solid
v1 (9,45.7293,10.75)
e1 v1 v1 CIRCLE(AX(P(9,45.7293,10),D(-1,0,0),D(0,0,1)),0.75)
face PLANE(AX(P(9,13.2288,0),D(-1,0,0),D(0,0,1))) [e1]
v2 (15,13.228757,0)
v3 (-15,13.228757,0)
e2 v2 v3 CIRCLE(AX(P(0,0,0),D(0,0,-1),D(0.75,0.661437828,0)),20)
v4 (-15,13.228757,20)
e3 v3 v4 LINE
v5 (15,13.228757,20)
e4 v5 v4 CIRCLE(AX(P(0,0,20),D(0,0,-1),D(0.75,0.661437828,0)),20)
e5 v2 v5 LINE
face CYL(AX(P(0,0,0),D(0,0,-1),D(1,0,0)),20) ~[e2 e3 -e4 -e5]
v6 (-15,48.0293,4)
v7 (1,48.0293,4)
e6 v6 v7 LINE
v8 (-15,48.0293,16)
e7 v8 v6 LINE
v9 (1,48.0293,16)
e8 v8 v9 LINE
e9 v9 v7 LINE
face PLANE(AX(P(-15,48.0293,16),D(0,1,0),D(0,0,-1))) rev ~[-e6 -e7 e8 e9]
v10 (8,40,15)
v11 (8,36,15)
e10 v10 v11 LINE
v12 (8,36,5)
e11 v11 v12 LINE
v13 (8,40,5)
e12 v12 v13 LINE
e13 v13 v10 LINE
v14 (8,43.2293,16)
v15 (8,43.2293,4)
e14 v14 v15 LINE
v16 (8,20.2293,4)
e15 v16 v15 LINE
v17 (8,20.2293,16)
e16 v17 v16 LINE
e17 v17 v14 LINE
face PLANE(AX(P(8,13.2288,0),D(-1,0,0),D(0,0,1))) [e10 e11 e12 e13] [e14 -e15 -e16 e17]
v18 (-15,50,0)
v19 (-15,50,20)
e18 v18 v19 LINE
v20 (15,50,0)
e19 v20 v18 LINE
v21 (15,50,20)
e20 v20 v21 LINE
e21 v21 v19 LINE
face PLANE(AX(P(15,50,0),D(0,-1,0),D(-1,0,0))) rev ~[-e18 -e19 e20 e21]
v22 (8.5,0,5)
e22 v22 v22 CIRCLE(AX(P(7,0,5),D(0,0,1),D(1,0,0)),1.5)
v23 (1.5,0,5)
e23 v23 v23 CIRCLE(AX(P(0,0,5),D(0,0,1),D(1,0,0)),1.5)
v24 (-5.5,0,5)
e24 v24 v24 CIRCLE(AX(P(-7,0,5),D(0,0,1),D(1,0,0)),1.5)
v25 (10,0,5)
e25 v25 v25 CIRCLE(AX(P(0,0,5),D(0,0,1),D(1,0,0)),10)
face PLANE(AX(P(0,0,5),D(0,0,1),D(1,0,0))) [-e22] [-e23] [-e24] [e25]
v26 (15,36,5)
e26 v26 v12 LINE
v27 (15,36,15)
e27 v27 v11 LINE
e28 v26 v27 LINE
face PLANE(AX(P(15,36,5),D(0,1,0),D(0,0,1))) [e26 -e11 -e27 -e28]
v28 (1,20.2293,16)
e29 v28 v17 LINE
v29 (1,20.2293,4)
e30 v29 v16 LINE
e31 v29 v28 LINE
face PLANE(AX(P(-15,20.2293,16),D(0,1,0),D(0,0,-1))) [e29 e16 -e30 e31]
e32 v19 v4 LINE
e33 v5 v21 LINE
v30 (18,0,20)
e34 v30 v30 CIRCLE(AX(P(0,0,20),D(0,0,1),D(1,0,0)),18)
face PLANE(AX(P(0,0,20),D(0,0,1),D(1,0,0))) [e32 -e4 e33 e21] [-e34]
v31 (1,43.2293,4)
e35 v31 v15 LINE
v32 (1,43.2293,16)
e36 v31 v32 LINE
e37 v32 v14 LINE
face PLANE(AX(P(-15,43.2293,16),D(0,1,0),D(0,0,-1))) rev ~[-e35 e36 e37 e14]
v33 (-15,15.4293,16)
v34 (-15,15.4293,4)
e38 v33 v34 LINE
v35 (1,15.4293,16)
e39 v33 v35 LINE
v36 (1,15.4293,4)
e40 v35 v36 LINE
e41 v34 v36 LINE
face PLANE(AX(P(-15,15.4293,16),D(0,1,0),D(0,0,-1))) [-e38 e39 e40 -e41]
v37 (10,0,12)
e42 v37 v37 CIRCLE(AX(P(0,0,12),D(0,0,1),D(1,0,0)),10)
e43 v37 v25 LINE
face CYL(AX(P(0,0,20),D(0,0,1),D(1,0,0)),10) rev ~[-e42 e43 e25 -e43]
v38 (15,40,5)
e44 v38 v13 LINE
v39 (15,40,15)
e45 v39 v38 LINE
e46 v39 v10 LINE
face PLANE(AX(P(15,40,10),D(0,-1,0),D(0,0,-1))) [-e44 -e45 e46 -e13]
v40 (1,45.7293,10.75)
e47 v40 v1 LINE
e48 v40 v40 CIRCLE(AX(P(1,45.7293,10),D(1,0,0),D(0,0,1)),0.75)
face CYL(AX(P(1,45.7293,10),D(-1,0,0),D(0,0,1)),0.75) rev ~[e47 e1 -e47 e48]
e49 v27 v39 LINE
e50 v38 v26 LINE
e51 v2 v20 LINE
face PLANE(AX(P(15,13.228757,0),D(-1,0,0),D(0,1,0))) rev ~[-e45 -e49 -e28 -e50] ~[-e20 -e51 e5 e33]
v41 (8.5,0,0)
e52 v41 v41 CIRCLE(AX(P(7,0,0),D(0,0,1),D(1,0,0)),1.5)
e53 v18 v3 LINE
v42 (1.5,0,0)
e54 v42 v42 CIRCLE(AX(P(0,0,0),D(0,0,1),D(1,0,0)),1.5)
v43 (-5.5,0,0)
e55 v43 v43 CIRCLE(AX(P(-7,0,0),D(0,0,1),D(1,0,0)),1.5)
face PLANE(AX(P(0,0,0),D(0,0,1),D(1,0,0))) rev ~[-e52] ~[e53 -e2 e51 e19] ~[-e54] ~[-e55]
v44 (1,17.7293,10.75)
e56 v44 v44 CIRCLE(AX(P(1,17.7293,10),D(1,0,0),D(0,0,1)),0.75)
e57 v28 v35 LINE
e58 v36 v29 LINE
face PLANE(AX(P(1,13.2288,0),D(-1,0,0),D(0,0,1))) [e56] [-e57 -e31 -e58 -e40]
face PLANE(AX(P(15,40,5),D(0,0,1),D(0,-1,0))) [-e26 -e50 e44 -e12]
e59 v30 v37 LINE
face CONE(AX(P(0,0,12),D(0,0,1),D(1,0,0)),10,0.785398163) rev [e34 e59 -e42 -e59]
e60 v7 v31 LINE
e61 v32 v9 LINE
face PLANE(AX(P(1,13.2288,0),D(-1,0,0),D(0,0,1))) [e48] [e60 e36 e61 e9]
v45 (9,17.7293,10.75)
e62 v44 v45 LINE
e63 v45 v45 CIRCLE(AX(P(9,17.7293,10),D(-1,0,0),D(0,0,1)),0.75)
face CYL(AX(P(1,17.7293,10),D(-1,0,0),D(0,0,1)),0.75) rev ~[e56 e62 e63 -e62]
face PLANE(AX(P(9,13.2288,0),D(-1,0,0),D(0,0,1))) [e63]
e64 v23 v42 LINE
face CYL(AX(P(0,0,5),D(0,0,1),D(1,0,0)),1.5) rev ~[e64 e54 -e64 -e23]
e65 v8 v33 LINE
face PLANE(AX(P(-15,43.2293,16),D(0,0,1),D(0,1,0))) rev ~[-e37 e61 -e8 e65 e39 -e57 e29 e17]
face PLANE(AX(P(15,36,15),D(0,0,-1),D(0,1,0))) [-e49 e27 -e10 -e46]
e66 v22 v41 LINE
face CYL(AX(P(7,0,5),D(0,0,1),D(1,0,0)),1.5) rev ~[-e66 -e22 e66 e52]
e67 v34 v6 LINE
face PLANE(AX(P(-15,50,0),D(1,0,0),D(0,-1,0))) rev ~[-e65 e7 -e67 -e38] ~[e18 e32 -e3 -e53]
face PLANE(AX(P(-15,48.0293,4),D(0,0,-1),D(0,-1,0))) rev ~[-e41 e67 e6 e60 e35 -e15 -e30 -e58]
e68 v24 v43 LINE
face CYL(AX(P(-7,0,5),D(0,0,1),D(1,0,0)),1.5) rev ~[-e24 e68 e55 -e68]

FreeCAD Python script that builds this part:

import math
import FreeCAD as App
import Part
import Sketcher
from FreeCAD import Vector


def edges_at(feature, points):
    """Names of the edges that pass closest to the given points."""
    edges = feature.Shape.Edges
    near = lambda p: min(range(len(edges)), key=lambda i: edges[i].distToShape(Part.Vertex(*p))[0])
    return sorted({f"Edge{near(p) + 1}" for p in points})

doc = App.newDocument("Part")
params = doc.addObject("Spreadsheet::Sheet", "Params")
for row, (alias, value) in enumerate([
    ("sketch1_radius", "20 mm"),
    ("sketch1_width", "30 mm"),
    ("pad1_length", "20 mm"),
    ("sketch2_diameter", "20 mm"),
    ("pocket1_length", "15 mm"),
    ("sketch3_width", "23 mm"),
    ("sketch3_height", "12 mm"),
    ("pocket2_length", "23 mm"),
    ("sketch4_height", "12 mm"),
    ("sketch4_width", "4.8 mm"),
    ("pocket3_length", "16 mm"),
    ("sketch5_diameter", "1.5 mm"),
    ("pocket4_length", "8 mm"),
    ("sketch6_height", "10 mm"),
    ("sketch6_width", "4 mm"),
    ("pocket5_length", "15.8125 mm"),
    ("sketch7_diameter", "3 mm"),
    ("pocket6_length", "8 mm"),
    ("chamfer_size", "8 mm"),
], start=1):
    params.set(f"A{row}", alias)
    params.set(f"B{row}", "=" + value)
    params.setAlias(f"B{row}", alias)

body = doc.addObject("PartDesign::Body", "Body")

# Sketch on XY plane
sketch1 = body.newObject("Sketcher::SketchObject", "Sketch")
sketch1.AttachmentSupport = (doc.getObject("XY_Plane"), [""])
sketch1.MapMode = "FlatFace"
sketch1.addGeometry([
    Part.ArcOfCircle(Part.Circle(Vector(0, 0, 0), Vector(0, 0, 1), 20), math.radians(138.590378), math.radians(401.409622)),
    Part.LineSegment(Vector(15, 13.228757, 0), Vector(15, 50, 0)),
    Part.LineSegment(Vector(15, 50, 0), Vector(-15, 50, 0)),
    Part.LineSegment(Vector(-15, 50, 0), Vector(-15, 13.228757, 0)),
], False)
sketch1.addConstraint([
    Sketcher.Constraint("Coincident", 0, 2, 1, 1),
    Sketcher.Constraint("Coincident", 1, 2, 2, 1),
    Sketcher.Constraint("Coincident", 2, 2, 3, 1),
    Sketcher.Constraint("Coincident", 3, 2, 0, 1),
    Sketcher.Constraint("Vertical", 1),
    Sketcher.Constraint("Horizontal", 2),
    Sketcher.Constraint("Vertical", 3),
    Sketcher.Constraint("Coincident", 0, 3, -1, 1),
    Sketcher.Constraint("Horizontal", 0, 2, 3, 2),
    Sketcher.Constraint("Radius", 0, 20.0),
    Sketcher.Constraint("DistanceX", 2, 2, 2, 1, 30.0),
    Sketcher.Constraint("DistanceY", -1, 1, 1, 2, 50.0),
])
sketch1.setExpression("Constraints[9]", "Params.sketch1_radius")
sketch1.setExpression("Constraints[10]", "Params.sketch1_width")
pad1 = body.newObject("PartDesign::Pad", "Pad")
pad1.Profile = sketch1
pad1.setExpression("Length", "Params.pad1_length")

# Sketch on XY plane
sketch2 = body.newObject("Sketcher::SketchObject", "Sketch001")
sketch2.AttachmentSupport = (doc.getObject("XY_Plane"), [""])
sketch2.MapMode = "FlatFace"
sketch2.AttachmentOffset = App.Placement(Vector(0, 0, 20), App.Rotation())
sketch2.addGeometry(Part.Circle(Vector(0, 0, 0), Vector(0, 0, 1), 10), False)
sketch2.addConstraint([
    Sketcher.Constraint("Coincident", 0, 3, -1, 1),
    Sketcher.Constraint("Diameter", 0, 20.0),
])
sketch2.setExpression("Constraints[1]", "Params.sketch2_diameter")
pocket1 = body.newObject("PartDesign::Pocket", "Pocket")
pocket1.Profile = sketch2
pocket1.setExpression("Length", "Params.pocket1_length")

# Sketch on YZ plane
sketch3 = body.newObject("Sketcher::SketchObject", "Sketch002")
sketch3.AttachmentSupport = (doc.getObject("YZ_Plane"), [""])
sketch3.MapMode = "FlatFace"
sketch3.AttachmentOffset = App.Placement(Vector(0, 0, -15), App.Rotation())
sketch3.addGeometry([
    Part.LineSegment(Vector(43.2293, 16, 0), Vector(43.2293, 4, 0)),
    Part.LineSegment(Vector(43.2293, 4, 0), Vector(20.2293, 4, 0)),
    Part.LineSegment(Vector(20.2293, 4, 0), Vector(20.2293, 16, 0)),
    Part.LineSegment(Vector(20.2293, 16, 0), Vector(43.2293, 16, 0)),
], False)
sketch3.addConstraint([
    Sketcher.Constraint("Coincident", 0, 2, 1, 1),
    Sketcher.Constraint("Coincident", 1, 2, 2, 1),
    Sketcher.Constraint("Coincident", 2, 2, 3, 1),
    Sketcher.Constraint("Coincident", 3, 2, 0, 1),
    Sketcher.Constraint("Vertical", 0),
    Sketcher.Constraint("Horizontal", 1),
    Sketcher.Constraint("Vertical", 2),
    Sketcher.Constraint("Horizontal", 3),
    Sketcher.Constraint("DistanceX", 1, 2, 1, 1, 23.0),
    Sketcher.Constraint("DistanceY", 0, 2, 0, 1, 12.0),
    Sketcher.Constraint("DistanceY", -1, 1, 0, 2, 4.0),
    Sketcher.Constraint("DistanceX", -1, 1, 0, 2, 43.2293),
])
sketch3.setExpression("Constraints[8]", "Params.sketch3_width")
sketch3.setExpression("Constraints[9]", "Params.sketch3_height")
pocket2 = body.newObject("PartDesign::Pocket", "Pocket001")
pocket2.Profile = sketch3
pocket2.setExpression("Length", "Params.pocket2_length")
pocket2.Reversed = True

# Sketch on YZ plane
sketch4 = body.newObject("Sketcher::SketchObject", "Sketch003")
sketch4.AttachmentSupport = (doc.getObject("YZ_Plane"), [""])
sketch4.MapMode = "FlatFace"
sketch4.AttachmentOffset = App.Placement(Vector(0, 0, -15), App.Rotation())
sketch4.addGeometry([
    Part.LineSegment(Vector(48.0293, 4, 0), Vector(43.2293, 4, 0)),  # 0
    Part.LineSegment(Vector(43.2293, 4, 0), Vector(43.2293, 16, 0)),  # 1
    Part.LineSegment(Vector(43.2293, 16, 0), Vector(48.0293, 16, 0)),  # 2
    Part.LineSegment(Vector(48.0293, 16, 0), Vector(48.0293, 4, 0)),  # 3
    Part.LineSegment(Vector(20.2293, 16, 0), Vector(20.2293, 4, 0)),  # 4
    Part.LineSegment(Vector(20.2293, 4, 0), Vector(15.4293, 4, 0)),  # 5
    Part.LineSegment(Vector(15.4293, 4, 0), Vector(15.4293, 16, 0)),  # 6
    Part.LineSegment(Vector(15.4293, 16, 0), Vector(20.2293, 16, 0)),  # 7
], False)
sketch4.addConstraint([
    Sketcher.Constraint("Coincident", 0, 2, 1, 1),
    Sketcher.Constraint("Coincident", 1, 2, 2, 1),
    Sketcher.Constraint("Coincident", 2, 2, 3, 1),
    Sketcher.Constraint("Coincident", 3, 2, 0, 1),
    Sketcher.Constraint("Coincident", 4, 2, 5, 1),
    Sketcher.Constraint("Coincident", 5, 2, 6, 1),
    Sketcher.Constraint("Coincident", 6, 2, 7, 1),
    Sketcher.Constraint("Coincident", 7, 2, 4, 1),
    Sketcher.Constraint("Horizontal", 0),
    Sketcher.Constraint("Vertical", 1),
    Sketcher.Constraint("Horizontal", 2),
    Sketcher.Constraint("Vertical", 3),
    Sketcher.Constraint("Vertical", 4),
    Sketcher.Constraint("Horizontal", 5),
    Sketcher.Constraint("Vertical", 6),
    Sketcher.Constraint("Horizontal", 7),
    Sketcher.Constraint("Horizontal", 3, 2, 4, 2),
    Sketcher.Constraint("Horizontal", 2, 2, 6, 2),
    Sketcher.Constraint("Equal", 2, 5),
    Sketcher.Constraint("DistanceY", 1, 1, 1, 2, 12.0),
    Sketcher.Constraint("DistanceX", 0, 2, 0, 1, 4.8),
    Sketcher.Constraint("DistanceY", -1, 1, 0, 2, 4.0),
    Sketcher.Constraint("DistanceX", 4, 2, 0, 2, 23.0),
    Sketcher.Constraint("DistanceX", -1, 1, 0, 2, 43.2293),
])
sketch4.setExpression("Constraints[19]", "Params.sketch4_height")
sketch4.setExpression("Constraints[20]", "Params.sketch4_width")
pocket3 = body.newObject("PartDesign::Pocket", "Pocket002")
pocket3.Profile = sketch4
pocket3.setExpression("Length", "Params.pocket3_length")
pocket3.Reversed = True

# Sketch on YZ plane
sketch5 = body.newObject("Sketcher::SketchObject", "Sketch004")
sketch5.AttachmentSupport = (doc.getObject("YZ_Plane"), [""])
sketch5.MapMode = "FlatFace"
sketch5.AttachmentOffset = App.Placement(Vector(0, 0, 1), App.Rotation())
sketch5.addGeometry([
    Part.Circle(Vector(45.7293, 10, 0), Vector(0, 0, 1), 0.75),
    Part.Circle(Vector(17.7293, 10, 0), Vector(0, 0, 1), 0.75),
], False)
sketch5.addConstraint([
    Sketcher.Constraint("Equal", 0, 1),
    Sketcher.Constraint("Horizontal", 0, 3, 1, 3),
    Sketcher.Constraint("Diameter", 0, 1.5),
    Sketcher.Constraint("DistanceY", -1, 1, 0, 3, 10.0),
    Sketcher.Constraint("DistanceX", 1, 3, 0, 3, 28.0),
    Sketcher.Constraint("DistanceX", -1, 1, 0, 3, 45.7293),
])
sketch5.setExpression("Constraints[2]", "Params.sketch5_diameter")
pocket4 = body.newObject("PartDesign::Pocket", "Pocket003")
pocket4.Profile = sketch5
pocket4.setExpression("Length", "Params.pocket4_length")
pocket4.Reversed = True

# Sketch on YZ plane
sketch6 = body.newObject("Sketcher::SketchObject", "Sketch005")
sketch6.AttachmentSupport = (doc.getObject("YZ_Plane"), [""])
sketch6.MapMode = "FlatFace"
sketch6.AttachmentOffset = App.Placement(Vector(0, 0, 15), App.Rotation())
sketch6.addGeometry([
    Part.LineSegment(Vector(36, 5, 0), Vector(40, 5, 0)),
    Part.LineSegment(Vector(40, 5, 0), Vector(40, 15, 0)),
    Part.LineSegment(Vector(40, 15, 0), Vector(36, 15, 0)),
    Part.LineSegment(Vector(36, 15, 0), Vector(36, 5, 0)),
], False)
sketch6.addConstraint([
    Sketcher.Constraint("Coincident", 0, 2, 1, 1),
    Sketcher.Constraint("Coincident", 1, 2, 2, 1),
    Sketcher.Constraint("Coincident", 2, 2, 3, 1),
    Sketcher.Constraint("Coincident", 3, 2, 0, 1),
    Sketcher.Constraint("Horizontal", 0),
    Sketcher.Constraint("Vertical", 1),
    Sketcher.Constraint("Horizontal", 2),
    Sketcher.Constraint("Vertical", 3),
    Sketcher.Constraint("DistanceY", 1, 1, 1, 2, 10.0),
    Sketcher.Constraint("DistanceY", -1, 1, 0, 2, 5.0),
    Sketcher.Constraint("DistanceX", 0, 1, 0, 2, 4.0),
    Sketcher.Constraint("DistanceX", -1, 1, 0, 2, 40.0),
])
sketch6.setExpression("Constraints[8]", "Params.sketch6_height")
sketch6.setExpression("Constraints[10]", "Params.sketch6_width")
pocket5 = body.newObject("PartDesign::Pocket", "Pocket004")
pocket5.Profile = sketch6
pocket5.setExpression("Length", "Params.pocket5_length")

# Sketch on XY plane
sketch7 = body.newObject("Sketcher::SketchObject", "Sketch006")
sketch7.AttachmentSupport = (doc.getObject("XY_Plane"), [""])
sketch7.MapMode = "FlatFace"
sketch7.AttachmentOffset = App.Placement(Vector(0, 0, 5), App.Rotation())
sketch7.addGeometry([
    Part.Circle(Vector(0, 0, 0), Vector(0, 0, 1), 1.5),
    Part.Circle(Vector(7, 0, 0), Vector(0, 0, 1), 1.5),
    Part.Circle(Vector(-7, 0, 0), Vector(0, 0, 1), 1.5),
], False)
sketch7.addConstraint([
    Sketcher.Constraint("Coincident", 0, 3, -1, 1),
    Sketcher.Constraint("Equal", 0, 1),
    Sketcher.Constraint("Equal", 1, 2),
    Sketcher.Constraint("Symmetric", 1, 3, 2, 3, -1, 1),
    Sketcher.Constraint("PointOnObject", 1, 3, -1),
    Sketcher.Constraint("Diameter", 0, 3.0),
    Sketcher.Constraint("DistanceX", -1, 1, 1, 3, 7.0),
])
sketch7.setExpression("Constraints[5]", "Params.sketch7_diameter")
pocket6 = body.newObject("PartDesign::Pocket", "Pocket005")
pocket6.Profile = sketch7
pocket6.setExpression("Length", "Params.pocket6_length")
doc.recompute()

chamfer = body.newObject("PartDesign::Chamfer", "Chamfer")
chamfer.Base = (pocket6, edges_at(pocket6, [(-10, 0, 20)]))
chamfer.setExpression("Size", "Params.chamfer_size")

doc.recompute()
